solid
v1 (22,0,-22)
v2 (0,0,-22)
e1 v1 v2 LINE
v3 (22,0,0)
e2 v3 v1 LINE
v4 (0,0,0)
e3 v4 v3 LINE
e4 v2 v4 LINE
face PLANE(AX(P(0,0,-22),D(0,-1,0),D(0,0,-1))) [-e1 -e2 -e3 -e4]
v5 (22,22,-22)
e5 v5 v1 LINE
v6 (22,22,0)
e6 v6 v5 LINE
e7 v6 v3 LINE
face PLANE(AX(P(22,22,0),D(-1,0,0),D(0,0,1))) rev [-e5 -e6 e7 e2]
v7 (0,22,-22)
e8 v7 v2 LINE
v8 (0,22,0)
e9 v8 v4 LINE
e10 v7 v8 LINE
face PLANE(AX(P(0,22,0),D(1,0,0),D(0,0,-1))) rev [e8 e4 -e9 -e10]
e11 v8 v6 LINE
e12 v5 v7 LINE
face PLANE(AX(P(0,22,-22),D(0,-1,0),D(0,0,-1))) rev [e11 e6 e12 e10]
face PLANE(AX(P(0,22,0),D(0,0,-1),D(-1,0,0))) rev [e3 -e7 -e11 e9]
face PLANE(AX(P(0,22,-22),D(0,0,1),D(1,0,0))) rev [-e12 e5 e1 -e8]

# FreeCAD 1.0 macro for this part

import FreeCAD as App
import Part
import Sketcher

V = App.Vector


def add_polygon(sketch, points):
    """Adds a closed chain of lines whose ends are joined by coincident constraints."""
    first, n = sketch.GeometryCount, len(points)
    for a, b in zip(points, points[1:] + points[:1]):
        sketch.addGeometry(Part.LineSegment(App.Vector(*a, 0), App.Vector(*b, 0)), False)
    for i in range(n):
        sketch.addConstraint(Sketcher.Constraint("Coincident", first + i, 2, first + (i + 1) % n, 1))

doc = App.newDocument("Part")
body = doc.addObject("PartDesign::Body", "Body")

# Sketch on XZ plane
sketch1 = body.newObject("Sketcher::SketchObject", "Sketch")
sketch1.AttachmentSupport = (doc.getObject("XZ_Plane"), [""])
sketch1.MapMode = "FlatFace"
add_polygon(sketch1, [(0, -22), (0, 0), (22, 0), (22, -22)])  # lines 0-3
sketch1.addConstraint([
    Sketcher.Constraint("Vertical", 0),
    Sketcher.Constraint("Horizontal", 1),
    Sketcher.Constraint("Vertical", 2),
    Sketcher.Constraint("Horizontal", 3),
    Sketcher.Constraint("Coincident", 0, 2, -1, 1),
    Sketcher.Constraint("Equal", 3, 0),
    Sketcher.Constraint("DistanceX", 1, 1, 1, 2, 22.0),
])
pad1 = body.newObject("PartDesign::Pad", "Pad")
pad1.Profile = sketch1
pad1.Length = 22
pad1.Reversed = True

doc.recompute()
